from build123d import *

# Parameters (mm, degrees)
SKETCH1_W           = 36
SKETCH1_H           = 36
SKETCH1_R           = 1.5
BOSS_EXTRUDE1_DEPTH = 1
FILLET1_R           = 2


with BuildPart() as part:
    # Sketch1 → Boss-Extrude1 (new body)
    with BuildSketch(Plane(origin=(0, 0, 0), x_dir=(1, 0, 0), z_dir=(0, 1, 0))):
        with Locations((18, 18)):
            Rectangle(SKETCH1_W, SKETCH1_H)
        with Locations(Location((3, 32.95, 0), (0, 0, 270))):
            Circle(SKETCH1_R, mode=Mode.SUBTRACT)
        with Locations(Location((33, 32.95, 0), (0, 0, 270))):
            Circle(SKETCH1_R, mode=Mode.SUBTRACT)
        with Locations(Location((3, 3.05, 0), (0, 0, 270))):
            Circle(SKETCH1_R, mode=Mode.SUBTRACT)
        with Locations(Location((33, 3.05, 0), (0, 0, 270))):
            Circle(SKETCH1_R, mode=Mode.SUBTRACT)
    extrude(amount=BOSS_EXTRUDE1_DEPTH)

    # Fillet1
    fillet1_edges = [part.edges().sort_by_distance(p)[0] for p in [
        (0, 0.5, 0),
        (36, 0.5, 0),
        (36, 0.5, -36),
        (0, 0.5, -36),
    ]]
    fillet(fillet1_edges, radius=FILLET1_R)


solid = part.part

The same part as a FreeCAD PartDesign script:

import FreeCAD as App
import Part
import Sketcher
Q = App.Units.Quantity


def edges_at(feature, points):
    """Names of the edges that pass closest to the given points."""
    edges = feature.Shape.Edges
    near = lambda p: min(range(len(edges)), key=lambda i: edges[i].distToShape(Part.Vertex(*p))[0])
    return sorted({f"Edge{near(p) + 1}" for p in points})

doc = App.newDocument("Part")
body = doc.addObject("PartDesign::Body", "Body")

sketch1 = body.newObject("Sketcher::SketchObject", "Sketch")
sketch1.AttachmentSupport = (doc.getObject("XZ_Plane"), [""])
sketch1.MapMode = "FlatFace"
sketch1.addGeometry([
    Part.LineSegment(App.Vector(0, -36, 0), App.Vector(0, 0, 0)),
    Part.LineSegment(App.Vector(0, 0, 0), App.Vector(36, 0, 0)),
    Part.LineSegment(App.Vector(36, 0, 0), App.Vector(36, -36, 0)),
    Part.LineSegment(App.Vector(36, -36, 0), App.Vector(0, -36, 0)),
    Part.Circle(App.Vector(3, -3, 0), App.Vector(0, 0, 1), 1.5),
    Part.Circle(App.Vector(33, -3, 0), App.Vector(0, 0, 1), 1.5),
    Part.Circle(App.Vector(3, -33, 0), App.Vector(0, 0, 1), 1.5),
    Part.Circle(App.Vector(33, -33, 0), App.Vector(0, 0, 1), 1.5),
], False)
sketch1.addConstraint([
    Sketcher.Constraint("Coincident", 0, 2, 1, 1),
    Sketcher.Constraint("Coincident", 1, 2, 2, 1),
    Sketcher.Constraint("Coincident", 2, 2, 3, 1),
    Sketcher.Constraint("Coincident", 3, 2, 0, 1),
    Sketcher.Constraint("Vertical", 0),
    Sketcher.Constraint("Horizontal", 1),
    Sketcher.Constraint("Vertical", 2),
    Sketcher.Constraint("Horizontal", 3),
    Sketcher.Constraint("Coincident", 0, 2, -1, 1),
    Sketcher.Constraint("Equal", 4, 5),
    Sketcher.Constraint("Equal", 5, 6),
    Sketcher.Constraint("Equal", 6, 7),
    Sketcher.Constraint("Horizontal", 4, 3, 5, 3),
    Sketcher.Constraint("Horizontal", 6, 3, 7, 3),
    Sketcher.Constraint("Vertical", 4, 3, 6, 3),
    Sketcher.Constraint("Vertical", 5, 3, 7, 3),
    Sketcher.Constraint("Equal", 3, 0),
    Sketcher.Constraint("Diameter", 4, Q("3 mm")),
    Sketcher.Constraint("DistanceX", 1, 1, 1, 2, Q("36 mm")),
    Sketcher.Constraint("DistanceX", -1, 1, 4, 3, Q("3 mm")),
    Sketcher.Constraint("DistanceX", -1, 1, 5, 3, Q("33 mm")),
    Sketcher.Constraint("DistanceY", 6, 3, 4, 3, Q("29.9 mm")),
    Sketcher.Constraint("DistanceY", 4, 3, -1, 1, Q("3.05 mm")),
])
pad1 = body.newObject("PartDesign::Pad", "Pad")
pad1.Profile = sketch1
pad1.Length = 1
pad1.Reversed = True
doc.recompute()

fillet = body.newObject("PartDesign::Fillet", "Fillet")
fillet.Base = (pad1, edges_at(pad1, [
    (0, 0.5, 0),
    (36, 0.5, 0),
    (36, 0.5, -36),
    (0, 0.5, -36),
]))
fillet.Radius = 2

doc.recompute()
